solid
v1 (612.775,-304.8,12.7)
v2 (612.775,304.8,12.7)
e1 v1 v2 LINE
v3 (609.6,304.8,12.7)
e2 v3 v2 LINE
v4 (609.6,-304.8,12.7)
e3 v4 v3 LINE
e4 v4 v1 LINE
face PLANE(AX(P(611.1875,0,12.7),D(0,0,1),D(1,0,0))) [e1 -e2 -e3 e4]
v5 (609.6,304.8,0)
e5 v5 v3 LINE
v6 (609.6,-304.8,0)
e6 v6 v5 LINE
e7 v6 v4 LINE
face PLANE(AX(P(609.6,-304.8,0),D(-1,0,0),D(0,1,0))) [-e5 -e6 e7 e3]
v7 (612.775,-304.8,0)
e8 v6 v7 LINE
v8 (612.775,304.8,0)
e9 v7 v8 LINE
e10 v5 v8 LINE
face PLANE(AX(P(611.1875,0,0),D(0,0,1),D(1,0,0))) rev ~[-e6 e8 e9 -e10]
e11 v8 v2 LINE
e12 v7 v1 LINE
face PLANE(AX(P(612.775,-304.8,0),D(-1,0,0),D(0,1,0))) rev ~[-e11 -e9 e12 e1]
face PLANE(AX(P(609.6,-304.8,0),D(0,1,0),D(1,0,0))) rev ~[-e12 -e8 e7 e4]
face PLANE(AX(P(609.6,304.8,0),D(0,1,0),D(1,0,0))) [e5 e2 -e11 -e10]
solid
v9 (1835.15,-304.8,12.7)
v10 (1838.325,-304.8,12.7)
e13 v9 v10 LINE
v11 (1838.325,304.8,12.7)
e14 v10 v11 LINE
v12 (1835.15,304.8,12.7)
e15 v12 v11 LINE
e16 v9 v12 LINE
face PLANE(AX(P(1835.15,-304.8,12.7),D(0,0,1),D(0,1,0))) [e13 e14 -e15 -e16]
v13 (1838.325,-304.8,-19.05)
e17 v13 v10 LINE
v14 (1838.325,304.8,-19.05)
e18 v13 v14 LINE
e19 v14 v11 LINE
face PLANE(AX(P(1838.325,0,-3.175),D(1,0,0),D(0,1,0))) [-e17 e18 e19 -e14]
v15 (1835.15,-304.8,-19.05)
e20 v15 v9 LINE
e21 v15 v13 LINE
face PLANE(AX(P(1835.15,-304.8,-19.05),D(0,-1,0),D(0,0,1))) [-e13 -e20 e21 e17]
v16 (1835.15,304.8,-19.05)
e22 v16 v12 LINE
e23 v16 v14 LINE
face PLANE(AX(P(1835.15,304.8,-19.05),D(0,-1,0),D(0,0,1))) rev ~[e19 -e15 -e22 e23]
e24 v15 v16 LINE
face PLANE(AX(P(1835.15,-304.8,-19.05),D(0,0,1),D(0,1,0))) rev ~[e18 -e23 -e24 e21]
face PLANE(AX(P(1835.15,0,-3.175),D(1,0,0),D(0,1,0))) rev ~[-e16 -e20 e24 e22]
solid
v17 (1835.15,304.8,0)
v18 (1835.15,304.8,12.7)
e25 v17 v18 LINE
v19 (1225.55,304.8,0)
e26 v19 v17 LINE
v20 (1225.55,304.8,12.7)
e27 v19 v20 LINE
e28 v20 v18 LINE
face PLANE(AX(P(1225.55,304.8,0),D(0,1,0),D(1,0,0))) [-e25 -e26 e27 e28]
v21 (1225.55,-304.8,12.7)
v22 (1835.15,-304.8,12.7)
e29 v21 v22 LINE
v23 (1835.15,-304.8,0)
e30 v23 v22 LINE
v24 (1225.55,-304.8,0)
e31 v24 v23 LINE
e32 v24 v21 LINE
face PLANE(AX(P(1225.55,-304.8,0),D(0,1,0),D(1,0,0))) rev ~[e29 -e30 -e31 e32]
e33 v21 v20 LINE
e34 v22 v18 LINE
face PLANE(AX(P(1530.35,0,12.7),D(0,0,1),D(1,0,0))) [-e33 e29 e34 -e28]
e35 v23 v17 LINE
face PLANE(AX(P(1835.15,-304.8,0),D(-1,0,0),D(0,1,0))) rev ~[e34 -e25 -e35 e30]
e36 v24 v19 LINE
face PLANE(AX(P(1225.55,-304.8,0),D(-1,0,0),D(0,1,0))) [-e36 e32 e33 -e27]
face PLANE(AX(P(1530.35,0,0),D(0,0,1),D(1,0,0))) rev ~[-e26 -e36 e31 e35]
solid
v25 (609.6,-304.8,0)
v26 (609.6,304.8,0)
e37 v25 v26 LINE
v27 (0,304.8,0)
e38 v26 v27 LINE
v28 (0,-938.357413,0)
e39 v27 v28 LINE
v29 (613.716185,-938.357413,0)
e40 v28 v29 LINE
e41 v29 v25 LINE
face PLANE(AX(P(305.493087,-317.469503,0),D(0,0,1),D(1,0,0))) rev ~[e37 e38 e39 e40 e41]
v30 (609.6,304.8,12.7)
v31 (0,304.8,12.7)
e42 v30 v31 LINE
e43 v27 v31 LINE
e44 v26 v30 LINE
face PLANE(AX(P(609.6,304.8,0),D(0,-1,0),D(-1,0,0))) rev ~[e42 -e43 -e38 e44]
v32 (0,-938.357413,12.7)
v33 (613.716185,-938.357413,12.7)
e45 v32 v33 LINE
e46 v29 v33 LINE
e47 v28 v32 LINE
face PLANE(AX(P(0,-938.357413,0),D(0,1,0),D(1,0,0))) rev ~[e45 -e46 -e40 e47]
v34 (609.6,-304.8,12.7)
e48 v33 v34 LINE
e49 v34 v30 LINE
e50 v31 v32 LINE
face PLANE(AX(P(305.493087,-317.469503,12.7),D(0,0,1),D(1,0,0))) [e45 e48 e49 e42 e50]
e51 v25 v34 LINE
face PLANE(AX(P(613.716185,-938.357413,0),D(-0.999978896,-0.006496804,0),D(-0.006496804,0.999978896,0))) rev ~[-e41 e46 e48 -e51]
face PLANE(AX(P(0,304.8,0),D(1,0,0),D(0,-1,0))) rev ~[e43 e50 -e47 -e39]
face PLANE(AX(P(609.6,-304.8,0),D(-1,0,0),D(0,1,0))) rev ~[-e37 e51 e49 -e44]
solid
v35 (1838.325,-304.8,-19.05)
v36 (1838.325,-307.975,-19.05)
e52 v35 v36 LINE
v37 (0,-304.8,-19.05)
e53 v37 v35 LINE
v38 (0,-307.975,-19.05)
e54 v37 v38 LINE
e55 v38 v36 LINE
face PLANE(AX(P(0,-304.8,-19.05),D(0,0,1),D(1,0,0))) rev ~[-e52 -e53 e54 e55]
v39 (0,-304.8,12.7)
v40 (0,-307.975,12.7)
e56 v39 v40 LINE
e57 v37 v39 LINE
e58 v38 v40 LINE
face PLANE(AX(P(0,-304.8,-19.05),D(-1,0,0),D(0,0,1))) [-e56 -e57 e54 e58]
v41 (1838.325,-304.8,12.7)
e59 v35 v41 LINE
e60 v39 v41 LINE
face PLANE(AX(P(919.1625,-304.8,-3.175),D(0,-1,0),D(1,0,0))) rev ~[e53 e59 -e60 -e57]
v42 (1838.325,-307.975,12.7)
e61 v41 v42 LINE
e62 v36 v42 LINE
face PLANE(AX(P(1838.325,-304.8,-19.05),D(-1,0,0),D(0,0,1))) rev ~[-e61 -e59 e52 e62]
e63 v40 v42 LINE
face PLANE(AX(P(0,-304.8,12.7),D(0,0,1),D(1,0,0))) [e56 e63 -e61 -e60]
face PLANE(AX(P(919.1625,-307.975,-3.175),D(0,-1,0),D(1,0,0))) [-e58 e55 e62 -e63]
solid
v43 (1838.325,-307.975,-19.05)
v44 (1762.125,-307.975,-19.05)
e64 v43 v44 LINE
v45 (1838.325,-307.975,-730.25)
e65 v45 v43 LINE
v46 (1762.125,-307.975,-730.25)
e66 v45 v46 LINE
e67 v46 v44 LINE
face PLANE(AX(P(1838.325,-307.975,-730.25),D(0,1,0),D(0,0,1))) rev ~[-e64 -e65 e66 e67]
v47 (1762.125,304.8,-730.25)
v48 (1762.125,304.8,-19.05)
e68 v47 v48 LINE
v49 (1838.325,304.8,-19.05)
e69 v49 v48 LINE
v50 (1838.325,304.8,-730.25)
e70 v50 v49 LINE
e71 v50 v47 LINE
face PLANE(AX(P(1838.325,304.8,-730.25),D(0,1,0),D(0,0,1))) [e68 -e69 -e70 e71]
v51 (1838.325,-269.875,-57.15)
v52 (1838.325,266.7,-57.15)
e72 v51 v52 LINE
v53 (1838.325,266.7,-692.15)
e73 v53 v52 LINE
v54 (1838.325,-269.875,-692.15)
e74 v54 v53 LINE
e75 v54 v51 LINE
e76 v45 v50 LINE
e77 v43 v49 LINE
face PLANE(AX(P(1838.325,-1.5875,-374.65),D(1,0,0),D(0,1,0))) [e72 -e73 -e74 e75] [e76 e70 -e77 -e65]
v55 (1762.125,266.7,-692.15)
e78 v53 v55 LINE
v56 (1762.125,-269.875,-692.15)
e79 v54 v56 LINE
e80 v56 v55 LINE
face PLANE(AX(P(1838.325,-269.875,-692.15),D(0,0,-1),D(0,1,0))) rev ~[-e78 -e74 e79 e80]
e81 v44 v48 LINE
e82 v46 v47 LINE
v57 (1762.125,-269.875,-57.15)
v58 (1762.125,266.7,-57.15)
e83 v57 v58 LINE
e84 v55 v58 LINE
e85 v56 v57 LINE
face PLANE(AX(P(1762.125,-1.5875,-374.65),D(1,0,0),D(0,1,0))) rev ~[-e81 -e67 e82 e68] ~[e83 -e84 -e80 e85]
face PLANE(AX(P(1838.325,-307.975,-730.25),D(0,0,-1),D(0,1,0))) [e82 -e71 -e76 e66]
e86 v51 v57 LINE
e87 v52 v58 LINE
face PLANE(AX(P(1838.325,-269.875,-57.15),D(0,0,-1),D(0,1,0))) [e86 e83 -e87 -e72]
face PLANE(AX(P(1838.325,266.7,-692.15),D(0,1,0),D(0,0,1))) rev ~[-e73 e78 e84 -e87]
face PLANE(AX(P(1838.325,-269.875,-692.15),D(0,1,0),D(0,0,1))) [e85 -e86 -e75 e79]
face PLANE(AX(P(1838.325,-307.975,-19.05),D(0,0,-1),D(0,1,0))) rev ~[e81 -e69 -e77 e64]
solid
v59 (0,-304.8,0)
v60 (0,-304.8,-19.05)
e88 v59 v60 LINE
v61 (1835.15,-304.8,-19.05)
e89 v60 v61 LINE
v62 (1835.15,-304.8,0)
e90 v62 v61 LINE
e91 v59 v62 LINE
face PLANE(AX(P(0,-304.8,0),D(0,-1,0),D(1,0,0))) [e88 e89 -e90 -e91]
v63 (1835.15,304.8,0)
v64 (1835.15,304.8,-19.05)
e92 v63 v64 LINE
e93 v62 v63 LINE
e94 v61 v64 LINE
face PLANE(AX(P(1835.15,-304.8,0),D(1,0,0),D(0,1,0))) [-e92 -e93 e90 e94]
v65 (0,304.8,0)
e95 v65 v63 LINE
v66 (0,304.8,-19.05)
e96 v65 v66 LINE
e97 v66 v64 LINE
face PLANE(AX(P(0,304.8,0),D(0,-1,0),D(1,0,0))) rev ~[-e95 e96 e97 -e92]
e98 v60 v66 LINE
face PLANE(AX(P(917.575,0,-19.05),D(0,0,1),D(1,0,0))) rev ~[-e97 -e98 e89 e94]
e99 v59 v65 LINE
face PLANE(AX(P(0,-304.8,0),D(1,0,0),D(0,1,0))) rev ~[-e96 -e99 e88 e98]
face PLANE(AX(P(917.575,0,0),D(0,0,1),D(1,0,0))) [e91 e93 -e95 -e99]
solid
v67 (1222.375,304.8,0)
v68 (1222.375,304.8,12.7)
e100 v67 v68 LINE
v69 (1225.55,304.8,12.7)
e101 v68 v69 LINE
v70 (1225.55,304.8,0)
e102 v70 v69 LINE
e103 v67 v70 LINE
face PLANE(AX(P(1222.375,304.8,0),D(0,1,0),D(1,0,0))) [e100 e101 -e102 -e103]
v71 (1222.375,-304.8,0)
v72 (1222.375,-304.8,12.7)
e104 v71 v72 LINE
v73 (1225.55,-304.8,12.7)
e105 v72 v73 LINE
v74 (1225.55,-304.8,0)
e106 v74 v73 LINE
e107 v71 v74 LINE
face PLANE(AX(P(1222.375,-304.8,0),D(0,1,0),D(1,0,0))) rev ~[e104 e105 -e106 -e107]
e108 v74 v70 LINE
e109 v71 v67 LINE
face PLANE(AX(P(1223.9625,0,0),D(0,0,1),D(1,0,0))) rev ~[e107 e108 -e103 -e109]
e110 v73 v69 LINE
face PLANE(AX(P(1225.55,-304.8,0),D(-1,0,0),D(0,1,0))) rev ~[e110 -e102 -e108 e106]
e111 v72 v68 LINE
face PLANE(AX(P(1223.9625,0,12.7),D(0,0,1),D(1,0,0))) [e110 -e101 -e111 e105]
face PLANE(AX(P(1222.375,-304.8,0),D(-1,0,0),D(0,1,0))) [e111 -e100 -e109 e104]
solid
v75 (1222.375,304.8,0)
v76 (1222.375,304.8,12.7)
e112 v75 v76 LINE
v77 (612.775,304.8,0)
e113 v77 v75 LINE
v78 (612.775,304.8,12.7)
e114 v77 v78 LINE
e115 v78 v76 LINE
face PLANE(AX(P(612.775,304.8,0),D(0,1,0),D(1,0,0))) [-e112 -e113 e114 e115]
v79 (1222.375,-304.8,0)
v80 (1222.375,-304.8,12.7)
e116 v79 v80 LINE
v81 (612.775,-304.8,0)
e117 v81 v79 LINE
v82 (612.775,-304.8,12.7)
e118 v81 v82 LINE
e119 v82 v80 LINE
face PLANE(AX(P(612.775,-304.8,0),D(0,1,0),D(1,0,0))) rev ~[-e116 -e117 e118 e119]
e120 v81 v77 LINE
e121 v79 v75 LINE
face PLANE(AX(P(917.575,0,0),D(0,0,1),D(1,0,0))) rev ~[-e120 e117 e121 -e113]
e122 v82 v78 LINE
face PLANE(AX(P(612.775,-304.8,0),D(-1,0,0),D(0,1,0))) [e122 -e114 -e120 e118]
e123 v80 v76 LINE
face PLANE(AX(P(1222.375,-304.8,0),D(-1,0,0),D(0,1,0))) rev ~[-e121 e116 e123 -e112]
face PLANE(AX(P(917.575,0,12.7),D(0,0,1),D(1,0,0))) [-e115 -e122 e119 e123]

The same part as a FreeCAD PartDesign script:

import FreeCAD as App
import Part
import Sketcher
from FreeCAD import Vector
Q = App.Units.Quantity

doc = App.newDocument("Part")
body = doc.addObject("PartDesign::Body", "Body")
body.AllowCompound = True

# Sketch on XY plane
sketch1 = doc.addObject("Sketcher::SketchObject", "Sketch")
body.addObject(sketch1)
sketch1.AttachmentSupport = (doc.XY_Plane, [""])
sketch1.MapMode = "FlatFace"
sketch1.addGeometry(Part.LineSegment(Vector(610, -305, 0), Vector(610, 305, 0)), False)
sketch1.addGeometry(Part.LineSegment(Vector(610, 305, 0), Vector(0, 305, 0)), False)
sketch1.addGeometry(Part.LineSegment(Vector(0, 305, 0), Vector(0, -938, 0)), False)
sketch1.addGeometry(Part.LineSegment(Vector(0, -938, 0), Vector(614, -938, 0)), False)
sketch1.addGeometry(Part.LineSegment(Vector(614, -938, 0), Vector(610, -305, 0)), False)
sketch1.addGeometry(Part.LineSegment(Vector(613, 305, 0), Vector(613, -305, 0)), False)
sketch1.addGeometry(Part.LineSegment(Vector(613, -305, 0), Vector(1222, -305, 0)), False)
sketch1.addGeometry(Part.LineSegment(Vector(1222, -305, 0), Vector(1222, 305, 0)), False)
sketch1.addGeometry(Part.LineSegment(Vector(1222, 305, 0), Vector(613, 305, 0)), False)
sketch1.addGeometry(Part.LineSegment(Vector(1226, 305, 0), Vector(1226, -305, 0)), False)
sketch1.addGeometry(Part.LineSegment(Vector(1226, -305, 0), Vector(1835, -305, 0)), False)
sketch1.addGeometry(Part.LineSegment(Vector(1835, -305, 0), Vector(1835, 305, 0)), False)
sketch1.addGeometry(Part.LineSegment(Vector(1835, 305, 0), Vector(1226, 305, 0)), False)
sketch1.addConstraint(Sketcher.Constraint("Coincident", 0, 2, 1, 1))
sketch1.addConstraint(Sketcher.Constraint("Coincident", 1, 2, 2, 1))
sketch1.addConstraint(Sketcher.Constraint("Coincident", 2, 2, 3, 1))
sketch1.addConstraint(Sketcher.Constraint("Coincident", 3, 2, 4, 1))
sketch1.addConstraint(Sketcher.Constraint("Coincident", 4, 2, 0, 1))
sketch1.addConstraint(Sketcher.Constraint("Coincident", 5, 2, 6, 1))
sketch1.addConstraint(Sketcher.Constraint("Coincident", 6, 2, 7, 1))
sketch1.addConstraint(Sketcher.Constraint("Coincident", 7, 2, 8, 1))
sketch1.addConstraint(Sketcher.Constraint("Coincident", 8, 2, 5, 1))
sketch1.addConstraint(Sketcher.Constraint("Coincident", 9, 2, 10, 1))
sketch1.addConstraint(Sketcher.Constraint("Coincident", 10, 2, 11, 1))
sketch1.addConstraint(Sketcher.Constraint("Coincident", 11, 2, 12, 1))
sketch1.addConstraint(Sketcher.Constraint("Coincident", 12, 2, 9, 1))
sketch1.addConstraint(Sketcher.Constraint("Vertical", 0))
sketch1.addConstraint(Sketcher.Constraint("Horizontal", 1))
sketch1.addConstraint(Sketcher.Constraint("Vertical", 2))
sketch1.addConstraint(Sketcher.Constraint("Horizontal", 3))
sketch1.addConstraint(Sketcher.Constraint("Vertical", 5))
sketch1.addConstraint(Sketcher.Constraint("Horizontal", 6))
sketch1.addConstraint(Sketcher.Constraint("Vertical", 7))
sketch1.addConstraint(Sketcher.Constraint("Horizontal", 8))
sketch1.addConstraint(Sketcher.Constraint("Vertical", 9))
sketch1.addConstraint(Sketcher.Constraint("Horizontal", 10))
sketch1.addConstraint(Sketcher.Constraint("Vertical", 11))
sketch1.addConstraint(Sketcher.Constraint("Horizontal", 12))
sketch1.addConstraint(Sketcher.Constraint("PointOnObject", 1, 2, -2))
sketch1.addConstraint(Sketcher.Constraint("Horizontal", 4, 2, 5, 2))
sketch1.addConstraint(Sketcher.Constraint("Horizontal", 1, 2, 7, 2))
sketch1.addConstraint(Sketcher.Constraint("Horizontal", 6, 2, 9, 2))
sketch1.addConstraint(Sketcher.Constraint("Horizontal", 8, 2, 11, 2))
sketch1.addConstraint(Sketcher.Constraint("Equal", 1, 6))
sketch1.addConstraint(Sketcher.Constraint("Equal", 8, 10))
sketch1.addConstraint(Sketcher.Constraint("Equal", 12, 0))
sketch1.addConstraint(Sketcher.Constraint("DistanceX", 1, 2, 1, 1, Q("24 in")))
sketch1.addConstraint(Sketcher.Constraint("DistanceY", -1, 1, 0, 2, Q("12 in")))
sketch1.addConstraint(Sketcher.Constraint("DistanceX", -1, 1, 9, 2, Q("48.25 in")))
sketch1.addConstraint(Sketcher.Constraint("DistanceX", -1, 1, 5, 2, Q("24.125 in")))
sketch1.addConstraint(Sketcher.Constraint("DistanceX", 3, 1, 3, 2, Q("613.716185 mm")))
sketch1.addConstraint(Sketcher.Constraint("DistanceY", 2, 2, 2, 1, Q("1243.157413 mm")))
pad1 = doc.addObject("PartDesign::Pad", "Pad")
body.addObject(pad1)
pad1.Profile = sketch1
pad1.Length = Q("0.5 in")
body2 = doc.addObject("PartDesign::Body", "Body001")

# Sketch on XY plane
sketch2 = doc.addObject("Sketcher::SketchObject", "Sketch001")
body2.addObject(sketch2)
sketch2.AttachmentSupport = (doc.getObject("XY_Plane001"), [""])
sketch2.MapMode = "FlatFace"
sketch2.addGeometry(Part.LineSegment(Vector(0, 305, 0), Vector(0, -305, 0)), False)
sketch2.addGeometry(Part.LineSegment(Vector(0, -305, 0), Vector(1835, -305, 0)), False)
sketch2.addGeometry(Part.LineSegment(Vector(1835, -305, 0), Vector(1835, 305, 0)), False)
sketch2.addGeometry(Part.LineSegment(Vector(1835, 305, 0), Vector(0, 305, 0)), False)
sketch2.addConstraint(Sketcher.Constraint("Coincident", 0, 2, 1, 1))
sketch2.addConstraint(Sketcher.Constraint("Coincident", 1, 2, 2, 1))
sketch2.addConstraint(Sketcher.Constraint("Coincident", 2, 2, 3, 1))
sketch2.addConstraint(Sketcher.Constraint("Coincident", 3, 2, 0, 1))
sketch2.addConstraint(Sketcher.Constraint("Vertical", 0))
sketch2.addConstraint(Sketcher.Constraint("Horizontal", 1))
sketch2.addConstraint(Sketcher.Constraint("Vertical", 2))
sketch2.addConstraint(Sketcher.Constraint("Horizontal", 3))
sketch2.addConstraint(Sketcher.Constraint("Symmetric", 0, 2, 3, 2, -1, 1))
sketch2.addConstraint(Sketcher.Constraint("DistanceY", 0, 2, 0, 1, Q("24 in")))
sketch2.addConstraint(Sketcher.Constraint("DistanceX", 1, 1, 1, 2, Q("72.25 in")))
pad2 = doc.addObject("PartDesign::Pad", "Pad001")
body2.addObject(pad2)
pad2.Profile = sketch2
pad2.Length = Q("0.75 in")
pad2.Reversed = True
body3 = doc.addObject("PartDesign::Body", "Body002")

# Sketch on YZ plane
sketch3 = doc.addObject("Sketcher::SketchObject", "Sketch002")
body3.addObject(sketch3)
sketch3.AttachmentSupport = (doc.getObject("YZ_Plane002"), [""])
sketch3.MapMode = "FlatFace"
sketch3.AttachmentOffset = App.Placement(Vector(0, 0, 72.25 * 25.4), App.Rotation())
sketch3.addGeometry(Part.LineSegment(Vector(-305, 13, 0), Vector(-305, -19, 0)), False)
sketch3.addGeometry(Part.LineSegment(Vector(-305, -19, 0), Vector(305, -19, 0)), False)
sketch3.addGeometry(Part.LineSegment(Vector(305, -19, 0), Vector(305, 13, 0)), False)
sketch3.addGeometry(Part.LineSegment(Vector(305, 13, 0), Vector(-305, 13, 0)), False)
sketch3.addConstraint(Sketcher.Constraint("Coincident", 0, 2, 1, 1))
sketch3.addConstraint(Sketcher.Constraint("Coincident", 1, 2, 2, 1))
sketch3.addConstraint(Sketcher.Constraint("Coincident", 2, 2, 3, 1))
sketch3.addConstraint(Sketcher.Constraint("Coincident", 3, 2, 0, 1))
sketch3.addConstraint(Sketcher.Constraint("Vertical", 0))
sketch3.addConstraint(Sketcher.Constraint("Horizontal", 1))
sketch3.addConstraint(Sketcher.Constraint("Vertical", 2))
sketch3.addConstraint(Sketcher.Constraint("Horizontal", 3))
sketch3.addConstraint(Sketcher.Constraint("DistanceX", 1, 1, 1, 2, Q("24 in")))
sketch3.addConstraint(Sketcher.Constraint("DistanceX", 0, 2, -1, 1, Q("12 in")))
sketch3.addConstraint(Sketcher.Constraint("DistanceY", 0, 2, 0, 1, Q("1.25 in")))
sketch3.addConstraint(Sketcher.Constraint("DistanceY", -1, 1, 2, 2, Q("0.5 in")))
pad3 = doc.addObject("PartDesign::Pad", "Pad002")
body3.addObject(pad3)
pad3.Profile = sketch3
pad3.Length = Q("0.125 in")
body4 = doc.addObject("PartDesign::Body", "Body003")

# Sketch on XZ plane
sketch4 = doc.addObject("Sketcher::SketchObject", "Sketch003")
body4.addObject(sketch4)
sketch4.AttachmentSupport = (doc.getObject("XZ_Plane003"), [""])
sketch4.MapMode = "FlatFace"
sketch4.AttachmentOffset = App.Placement(Vector(0, 0, 12 * 25.4), App.Rotation())
sketch4.addGeometry(Part.LineSegment(Vector(0, 13, 0), Vector(0, -19, 0)), False)
sketch4.addGeometry(Part.LineSegment(Vector(0, -19, 0), Vector(1838, -19, 0)), False)
sketch4.addGeometry(Part.LineSegment(Vector(1838, -19, 0), Vector(1838, 13, 0)), False)
sketch4.addGeometry(Part.LineSegment(Vector(1838, 13, 0), Vector(0, 13, 0)), False)
sketch4.addConstraint(Sketcher.Constraint("Coincident", 0, 2, 1, 1))
sketch4.addConstraint(Sketcher.Constraint("Coincident", 1, 2, 2, 1))
sketch4.addConstraint(Sketcher.Constraint("Coincident", 2, 2, 3, 1))
sketch4.addConstraint(Sketcher.Constraint("Coincident", 3, 2, 0, 1))
sketch4.addConstraint(Sketcher.Constraint("Vertical", 0))
sketch4.addConstraint(Sketcher.Constraint("Horizontal", 1))
sketch4.addConstraint(Sketcher.Constraint("Vertical", 2))
sketch4.addConstraint(Sketcher.Constraint("Horizontal", 3))
sketch4.addConstraint(Sketcher.Constraint("PointOnObject", 0, 2, -2))
sketch4.addConstraint(Sketcher.Constraint("DistanceY", 0, 2, 0, 1, Q("1.25 in")))
sketch4.addConstraint(Sketcher.Constraint("DistanceY", -1, 1, 2, 2, Q("0.5 in")))
sketch4.addConstraint(Sketcher.Constraint("DistanceX", 1, 1, 1, 2, Q("72.375 in")))
pad4 = doc.addObject("PartDesign::Pad", "Pad003")
body4.addObject(pad4)
pad4.Profile = sketch4
pad4.Length = Q("0.125 in")
body5 = doc.addObject("PartDesign::Body", "Body004")
body5.AllowCompound = True

# Sketch on XY plane
sketch5 = doc.addObject("Sketcher::SketchObject", "Sketch004")
body5.addObject(sketch5)
sketch5.AttachmentSupport = (doc.getObject("XY_Plane004"), [""])
sketch5.MapMode = "FlatFace"
sketch5.addGeometry(Part.LineSegment(Vector(609.6, 304.8, 0), Vector(609.6, -304.8, 0)), False)
sketch5.addGeometry(Part.LineSegment(Vector(609.6, -304.8, 0), Vector(612.8, -304.8, 0)), False)
sketch5.addGeometry(Part.LineSegment(Vector(612.8, -304.8, 0), Vector(612.8, 304.8, 0)), False)
sketch5.addGeometry(Part.LineSegment(Vector(612.8, 304.8, 0), Vector(609.6, 304.8, 0)), False)
sketch5.addGeometry(Part.LineSegment(Vector(1222.4, 304.8, 0), Vector(1222.4, -304.8, 0)), False)
sketch5.addGeometry(Part.LineSegment(Vector(1222.4, -304.8, 0), Vector(1225.5, -304.8, 0)), False)
sketch5.addGeometry(Part.LineSegment(Vector(1225.5, -304.8, 0), Vector(1225.5, 304.8, 0)), False)
sketch5.addGeometry(Part.LineSegment(Vector(1225.5, 304.8, 0), Vector(1222.4, 304.8, 0)), False)
sketch5.addConstraint(Sketcher.Constraint("Coincident", 0, 2, 1, 1))
sketch5.addConstraint(Sketcher.Constraint("Coincident", 1, 2, 2, 1))
sketch5.addConstraint(Sketcher.Constraint("Coincident", 2, 2, 3, 1))
sketch5.addConstraint(Sketcher.Constraint("Coincident", 3, 2, 0, 1))
sketch5.addConstraint(Sketcher.Constraint("Coincident", 4, 2, 5, 1))
sketch5.addConstraint(Sketcher.Constraint("Coincident", 5, 2, 6, 1))
sketch5.addConstraint(Sketcher.Constraint("Coincident", 6, 2, 7, 1))
sketch5.addConstraint(Sketcher.Constraint("Coincident", 7, 2, 4, 1))
sketch5.addConstraint(Sketcher.Constraint("Vertical", 0))
sketch5.addConstraint(Sketcher.Constraint("Horizontal", 1))
sketch5.addConstraint(Sketcher.Constraint("Vertical", 2))
sketch5.addConstraint(Sketcher.Constraint("Horizontal", 3))
sketch5.addConstraint(Sketcher.Constraint("Vertical", 4))
sketch5.addConstraint(Sketcher.Constraint("Horizontal", 5))
sketch5.addConstraint(Sketcher.Constraint("Vertical", 6))
sketch5.addConstraint(Sketcher.Constraint("Horizontal", 7))
sketch5.addConstraint(Sketcher.Constraint("Horizontal", 1, 2, 4, 2))
sketch5.addConstraint(Sketcher.Constraint("Horizontal", 3, 2, 6, 2))
sketch5.addConstraint(Sketcher.Constraint("Equal", 3, 5))
sketch5.addConstraint(Sketcher.Constraint("DistanceY", 0, 2, 0, 1, Q("24 in")))
sketch5.addConstraint(Sketcher.Constraint("DistanceX", -1, 1, 0, 2, Q("24 in")))
sketch5.addConstraint(Sketcher.Constraint("DistanceY", 0, 2, -1, 1, Q("12 in")))
sketch5.addConstraint(Sketcher.Constraint("DistanceX", 1, 2, 4, 2, Q("24 in")))
sketch5.addConstraint(Sketcher.Constraint("DistanceX", 1, 1, 1, 2, Q("0.125 in")))
pad5 = doc.addObject("PartDesign::Pad", "Pad004")
body5.addObject(pad5)
pad5.Profile = sketch5
pad5.Length = Q("0.5 in")
body6 = doc.addObject("PartDesign::Body", "Body005")

# Sketch on YZ plane
sketch6 = doc.addObject("Sketcher::SketchObject", "Sketch005")
body6.addObject(sketch6)
sketch6.AttachmentSupport = (doc.getObject("YZ_Plane005"), [""])
sketch6.MapMode = "FlatFace"
sketch6.AttachmentOffset = App.Placement(Vector(0, 0, 72.375 * 25.4), App.Rotation())
sketch6.addGeometry(Part.LineSegment(Vector(-308, -19, 0), Vector(-308, -730, 0)), False)
sketch6.addGeometry(Part.LineSegment(Vector(-308, -730, 0), Vector(305, -730, 0)), False)
sketch6.addGeometry(Part.LineSegment(Vector(305, -730, 0), Vector(305, -19, 0)), False)
sketch6.addGeometry(Part.LineSegment(Vector(305, -19, 0), Vector(-308, -19, 0)), False)
sketch6.addGeometry(Part.LineSegment(Vector(267, -692, 0), Vector(-270, -692, 0)), False)
sketch6.addGeometry(Part.LineSegment(Vector(-270, -692, 0), Vector(-270, -57, 0)), False)
sketch6.addGeometry(Part.LineSegment(Vector(-270, -57, 0), Vector(267, -57, 0)), False)
sketch6.addGeometry(Part.LineSegment(Vector(267, -57, 0), Vector(267, -692, 0)), False)
sketch6.addConstraint(Sketcher.Constraint("Coincident", 0, 2, 1, 1))
sketch6.addConstraint(Sketcher.Constraint("Coincident", 1, 2, 2, 1))
sketch6.addConstraint(Sketcher.Constraint("Coincident", 2, 2, 3, 1))
sketch6.addConstraint(Sketcher.Constraint("Coincident", 3, 2, 0, 1))
sketch6.addConstraint(Sketcher.Constraint("Coincident", 4, 2, 5, 1))
sketch6.addConstraint(Sketcher.Constraint("Coincident", 5, 2, 6, 1))
sketch6.addConstraint(Sketcher.Constraint("Coincident", 6, 2, 7, 1))
sketch6.addConstraint(Sketcher.Constraint("Coincident", 7, 2, 4, 1))
sketch6.addConstraint(Sketcher.Constraint("Vertical", 0))
sketch6.addConstraint(Sketcher.Constraint("Horizontal", 1))
sketch6.addConstraint(Sketcher.Constraint("Vertical", 2))
sketch6.addConstraint(Sketcher.Constraint("Horizontal", 3))
sketch6.addConstraint(Sketcher.Constraint("Horizontal", 4))
sketch6.addConstraint(Sketcher.Constraint("Vertical", 5))
sketch6.addConstraint(Sketcher.Constraint("Horizontal", 6))
sketch6.addConstraint(Sketcher.Constraint("Vertical", 7))
sketch6.addConstraint(Sketcher.Constraint("DistanceY", 0, 2, 0, 1, Q("28 in")))
sketch6.addConstraint(Sketcher.Constraint("DistanceY", 5, 1, 5, 2, Q("25 in")))
sketch6.addConstraint(Sketcher.Constraint("DistanceX", -1, 1, 1, 2, Q("12 in")))
sketch6.addConstraint(Sketcher.Constraint("DistanceX", -1, 1, 6, 2, Q("10.5 in")))
sketch6.addConstraint(Sketcher.Constraint("DistanceX", 0, 2, 4, 2, Q("1.5 in")))
sketch6.addConstraint(Sketcher.Constraint("DistanceY", 0, 2, 4, 2, Q("1.5 in")))
sketch6.addConstraint(Sketcher.Constraint("DistanceX", 1, 1, 1, 2, Q("24.125 in")))
sketch6.addConstraint(Sketcher.Constraint("DistanceY", 0, 2, -1, 1, Q("28.75 in")))
pad6 = doc.addObject("PartDesign::Pad", "Pad005")
body6.addObject(pad6)
pad6.Profile = sketch6
pad6.Length = Q("3 in")
pad6.Reversed = True

doc.recompute()
